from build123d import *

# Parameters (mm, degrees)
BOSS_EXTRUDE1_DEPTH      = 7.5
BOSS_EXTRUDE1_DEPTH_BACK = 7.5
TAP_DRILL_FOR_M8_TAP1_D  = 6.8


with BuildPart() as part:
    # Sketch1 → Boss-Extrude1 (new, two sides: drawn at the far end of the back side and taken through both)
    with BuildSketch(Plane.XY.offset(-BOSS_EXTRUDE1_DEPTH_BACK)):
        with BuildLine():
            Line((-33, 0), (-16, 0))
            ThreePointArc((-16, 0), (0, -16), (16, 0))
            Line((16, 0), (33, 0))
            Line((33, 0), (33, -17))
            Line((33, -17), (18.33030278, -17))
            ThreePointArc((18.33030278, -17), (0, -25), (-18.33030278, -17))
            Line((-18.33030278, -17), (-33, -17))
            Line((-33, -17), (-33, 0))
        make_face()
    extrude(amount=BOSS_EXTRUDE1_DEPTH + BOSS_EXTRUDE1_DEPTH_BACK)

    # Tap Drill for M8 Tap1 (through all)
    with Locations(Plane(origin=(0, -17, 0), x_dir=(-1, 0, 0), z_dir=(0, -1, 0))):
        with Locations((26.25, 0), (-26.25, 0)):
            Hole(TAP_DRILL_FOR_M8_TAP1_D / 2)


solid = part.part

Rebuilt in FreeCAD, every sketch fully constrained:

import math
import FreeCAD as App
import Part
import Sketcher

V = App.Vector
Q = App.Units.Quantity

doc = App.newDocument("Part")
params = doc.addObject("Spreadsheet::Sheet", "Params")
for row, (alias, value) in enumerate([
    ("sketch1_radius", "25 mm"),
    ("sketch1_radius2", "16 mm"),
    ("sketch1_width", "17 mm"),
    ("pad1_length", "7.5 mm"),
    ("pad1_length2", "7.5 mm"),
    ("sketch2_diameter", "6.8 mm"),
    ("hole_diameter", "6.8 mm"),
], start=1):
    params.set(f"A{row}", alias)
    params.set(f"B{row}", "=" + value)
    params.setAlias(f"B{row}", alias)

body = doc.addObject("PartDesign::Body", "Body")

# Sketch on XY plane
sketch1 = body.newObject("Sketcher::SketchObject", "Sketch")
sketch1.AttachmentSupport = (doc.getObject("XY_Plane"), [""])
sketch1.MapMode = "FlatFace"
sketch1.addGeometry([
    Part.LineSegment(V(-16, 0, 0), V(-33, 0, 0)),  # 0
    Part.LineSegment(V(-33, 0, 0), V(-33, -17, 0)),  # 1
    Part.LineSegment(V(-33, -17, 0), V(-18, -17, 0)),  # 2
    Part.ArcOfCircle(Part.Circle(V(0, 0, 0), V(0, 0, 1), 25), math.radians(-137), math.radians(-43)),  # 3
    Part.LineSegment(V(18, -17, 0), V(33, -17, 0)),  # 4
    Part.LineSegment(V(33, -17, 0), V(33, 0, 0)),  # 5
    Part.LineSegment(V(33, 0, 0), V(16, 0, 0)),  # 6
    Part.ArcOfCircle(Part.Circle(V(0, 0, 0), V(0, 0, 1), 16), math.radians(180), math.radians(360)),  # 7
], False)
sketch1.addConstraint([
    Sketcher.Constraint("Coincident", 0, 2, 1, 1),
    Sketcher.Constraint("Coincident", 1, 2, 2, 1),
    Sketcher.Constraint("Coincident", 2, 2, 3, 1),
    Sketcher.Constraint("Coincident", 3, 2, 4, 1),
    Sketcher.Constraint("Coincident", 4, 2, 5, 1),
    Sketcher.Constraint("Coincident", 5, 2, 6, 1),
    Sketcher.Constraint("Coincident", 6, 2, 7, 2),
    Sketcher.Constraint("Coincident", 7, 1, 0, 1),
    Sketcher.Constraint("Horizontal", 0),
    Sketcher.Constraint("Vertical", 1),
    Sketcher.Constraint("Horizontal", 2),
    Sketcher.Constraint("Horizontal", 4),
    Sketcher.Constraint("Vertical", 5),
    Sketcher.Constraint("Horizontal", 6),
    Sketcher.Constraint("Coincident", 3, 3, -1, 1),
    Sketcher.Constraint("Coincident", 7, 3, -1, 1),
    Sketcher.Constraint("Symmetric", 0, 2, 5, 2, -1, 1),
    Sketcher.Constraint("PointOnObject", 0, 2, -1),
    Sketcher.Constraint("Horizontal", 2, 2, 3, 2),
    Sketcher.Constraint("Equal", 6, 1),
    Sketcher.Constraint("Radius", 3, Q("25 mm")),
    Sketcher.Constraint("Radius", 7, Q("16 mm")),
    Sketcher.Constraint("DistanceX", 0, 2, 0, 1, Q("17 mm")),
])
sketch1.setExpression("Constraints[20]", "Params.sketch1_radius")
sketch1.setExpression("Constraints[21]", "Params.sketch1_radius2")
sketch1.setExpression("Constraints[22]", "Params.sketch1_width")
pad1 = body.newObject("PartDesign::Pad", "Pad")
pad1.Profile = sketch1
pad1.Type = "TwoLengths"
pad1.setExpression("Length", "Params.pad1_length")
pad1.setExpression("Length2", "Params.pad1_length2")

# Sketch on XZ plane
sketch2 = body.newObject("Sketcher::SketchObject", "Sketch001")
sketch2.AttachmentSupport = (doc.getObject("XZ_Plane"), [""])
sketch2.MapMode = "FlatFace"
sketch2.AttachmentOffset = App.Placement(V(0, 0, 17), App.Rotation())
sketch2.addGeometry([
    Part.Circle(V(-26.2, 0, 0), V(0, 0, 1), 3.4),
    Part.Circle(V(26.2, 0, 0), V(0, 0, 1), 3.4),
], False)
sketch2.addConstraint([
    Sketcher.Constraint("Equal", 0, 1),
    Sketcher.Constraint("Symmetric", 0, 3, 1, 3, -1, 1),
    Sketcher.Constraint("PointOnObject", 0, 3, -1),
    Sketcher.Constraint("Diameter", 0, Q("6.8 mm")),
    Sketcher.Constraint("DistanceX", 0, 3, 1, 3, Q("52.5 mm")),
])
sketch2.setExpression("Constraints[3]", "Params.sketch2_diameter")
doc.recompute()
hole = body.newObject("PartDesign::Hole", "Hole")
hole.Profile = sketch2
hole.ThreadType = "None"
hole.setExpression("Diameter", "Params.hole_diameter")
hole.DepthType = "ThroughAll"

doc.recompute()
